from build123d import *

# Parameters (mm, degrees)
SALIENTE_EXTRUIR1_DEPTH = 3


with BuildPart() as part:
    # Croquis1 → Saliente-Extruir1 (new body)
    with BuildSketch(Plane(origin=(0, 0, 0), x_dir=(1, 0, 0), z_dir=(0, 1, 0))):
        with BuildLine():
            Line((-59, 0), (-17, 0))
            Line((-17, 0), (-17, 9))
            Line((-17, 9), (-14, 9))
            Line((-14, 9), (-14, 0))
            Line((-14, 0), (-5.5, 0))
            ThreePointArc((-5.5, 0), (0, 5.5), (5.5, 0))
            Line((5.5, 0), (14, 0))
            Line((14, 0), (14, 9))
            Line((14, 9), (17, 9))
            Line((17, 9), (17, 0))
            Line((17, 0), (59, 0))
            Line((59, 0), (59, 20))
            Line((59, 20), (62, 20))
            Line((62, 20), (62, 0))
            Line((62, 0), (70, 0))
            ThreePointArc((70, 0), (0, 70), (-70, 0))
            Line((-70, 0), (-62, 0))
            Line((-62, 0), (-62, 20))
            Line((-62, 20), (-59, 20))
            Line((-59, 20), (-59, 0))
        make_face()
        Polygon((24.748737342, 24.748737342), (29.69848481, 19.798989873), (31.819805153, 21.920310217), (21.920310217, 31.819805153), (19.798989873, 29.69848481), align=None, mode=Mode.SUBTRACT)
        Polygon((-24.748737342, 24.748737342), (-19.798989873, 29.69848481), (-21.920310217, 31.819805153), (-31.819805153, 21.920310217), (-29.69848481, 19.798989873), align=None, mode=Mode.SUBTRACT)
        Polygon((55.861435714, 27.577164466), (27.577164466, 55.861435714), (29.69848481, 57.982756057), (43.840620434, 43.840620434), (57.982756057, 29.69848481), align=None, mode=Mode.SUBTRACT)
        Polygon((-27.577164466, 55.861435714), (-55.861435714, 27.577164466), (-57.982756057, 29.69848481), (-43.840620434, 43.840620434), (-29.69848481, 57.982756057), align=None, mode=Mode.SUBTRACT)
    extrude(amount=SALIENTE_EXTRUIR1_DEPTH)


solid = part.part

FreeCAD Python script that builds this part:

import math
import FreeCAD as App
import Part
import Sketcher
from FreeCAD import Vector


def add_polygon(sketch, points):
    """Adds a closed chain of lines whose ends are joined by coincident constraints."""
    first, n = sketch.GeometryCount, len(points)
    for a, b in zip(points, points[1:] + points[:1]):
        sketch.addGeometry(Part.LineSegment(App.Vector(*a, 0), App.Vector(*b, 0)), False)
    for i in range(n):
        sketch.addConstraint(Sketcher.Constraint("Coincident", first + i, 2, first + (i + 1) % n, 1))

doc = App.newDocument("Part")
body = doc.addObject("PartDesign::Body", "Body")

sketch1 = body.newObject("Sketcher::SketchObject", "Sketch")
sketch1.AttachmentSupport = (doc.getObject("XZ_Plane"), [""])
sketch1.MapMode = "FlatFace"
sketch1.addGeometry(Part.LineSegment(Vector(-59, 0, 0), Vector(-17, 0, 0)), False)
sketch1.addGeometry(Part.LineSegment(Vector(-17, 0, 0), Vector(-17, -9, 0)), False)
sketch1.addGeometry(Part.LineSegment(Vector(-17, -9, 0), Vector(-14, -9, 0)), False)
sketch1.addGeometry(Part.LineSegment(Vector(-14, -9, 0), Vector(-14, 0, 0)), False)
sketch1.addGeometry(Part.LineSegment(Vector(-14, 0, 0), Vector(-5.5, 0, 0)), False)
sketch1.addGeometry(Part.ArcOfCircle(Part.Circle(Vector(0, 0, 0), Vector(0, 0, 1), 5.5), math.radians(180), math.radians(360)), False)
sketch1.addGeometry(Part.LineSegment(Vector(5.5, 0, 0), Vector(14, 0, 0)), False)
sketch1.addGeometry(Part.LineSegment(Vector(14, 0, 0), Vector(14, -9, 0)), False)
sketch1.addGeometry(Part.LineSegment(Vector(14, -9, 0), Vector(17, -9, 0)), False)
sketch1.addGeometry(Part.LineSegment(Vector(17, -9, 0), Vector(17, 0, 0)), False)
sketch1.addGeometry(Part.LineSegment(Vector(17, 0, 0), Vector(59, 0, 0)), False)
sketch1.addGeometry(Part.LineSegment(Vector(59, 0, 0), Vector(59, -20, 0)), False)
sketch1.addGeometry(Part.LineSegment(Vector(59, -20, 0), Vector(62, -20, 0)), False)
sketch1.addGeometry(Part.LineSegment(Vector(62, -20, 0), Vector(62, 0, 0)), False)
sketch1.addGeometry(Part.LineSegment(Vector(62, 0, 0), Vector(70, 0, 0)), False)
sketch1.addGeometry(Part.ArcOfCircle(Part.Circle(Vector(0, 0, 0), Vector(0, 0, 1), 70), math.radians(180), math.radians(360)), False)
sketch1.addGeometry(Part.LineSegment(Vector(-70, 0, 0), Vector(-62, 0, 0)), False)
sketch1.addGeometry(Part.LineSegment(Vector(-62, 0, 0), Vector(-62, -20, 0)), False)
sketch1.addGeometry(Part.LineSegment(Vector(-62, -20, 0), Vector(-59, -20, 0)), False)
sketch1.addGeometry(Part.LineSegment(Vector(-59, -20, 0), Vector(-59, 0, 0)), False)
add_polygon(sketch1, [(-19.79899, -29.698485), (-24.748737, -24.748737), (-29.698485, -19.79899), (-31.819805, -21.92031), (-21.92031, -31.819805)])
add_polygon(sketch1, [(29.698485, -19.79899), (24.748737, -24.748737), (19.79899, -29.698485), (21.92031, -31.819805), (31.819805, -21.92031)])
add_polygon(sketch1, [(-29.698485, -57.982756), (-27.577164, -55.861436), (-55.861436, -27.577164), (-57.982756, -29.698485), (-43.84062, -43.84062)])
add_polygon(sketch1, [(57.982756, -29.698485), (55.861436, -27.577164), (27.577164, -55.861436), (29.698485, -57.982756), (43.84062, -43.84062)])
sketch1.addConstraint([
    Sketcher.Constraint("Coincident", 0, 2, 1, 1),
    Sketcher.Constraint("Coincident", 1, 2, 2, 1),
    Sketcher.Constraint("Coincident", 2, 2, 3, 1),
    Sketcher.Constraint("Coincident", 3, 2, 4, 1),
    Sketcher.Constraint("Coincident", 4, 2, 5, 1),
    Sketcher.Constraint("Coincident", 5, 2, 6, 1),
    Sketcher.Constraint("Coincident", 6, 2, 7, 1),
    Sketcher.Constraint("Coincident", 7, 2, 8, 1),
    Sketcher.Constraint("Coincident", 8, 2, 9, 1),
    Sketcher.Constraint("Coincident", 9, 2, 10, 1),
    Sketcher.Constraint("Coincident", 10, 2, 11, 1),
    Sketcher.Constraint("Coincident", 11, 2, 12, 1),
    Sketcher.Constraint("Coincident", 12, 2, 13, 1),
    Sketcher.Constraint("Coincident", 13, 2, 14, 1),
    Sketcher.Constraint("Coincident", 14, 2, 15, 2),
    Sketcher.Constraint("Coincident", 15, 1, 16, 1),
    Sketcher.Constraint("Coincident", 16, 2, 17, 1),
    Sketcher.Constraint("Coincident", 17, 2, 18, 1),
    Sketcher.Constraint("Coincident", 18, 2, 19, 1),
    Sketcher.Constraint("Coincident", 19, 2, 0, 1),
    Sketcher.Constraint("Horizontal", 0),
    Sketcher.Constraint("Vertical", 1),
    Sketcher.Constraint("Horizontal", 2),
    Sketcher.Constraint("Vertical", 3),
    Sketcher.Constraint("Horizontal", 4),
    Sketcher.Constraint("Horizontal", 6),
    Sketcher.Constraint("Vertical", 7),
    Sketcher.Constraint("Horizontal", 8),
    Sketcher.Constraint("Vertical", 9),
    Sketcher.Constraint("Horizontal", 10),
    Sketcher.Constraint("Vertical", 11),
    Sketcher.Constraint("Horizontal", 12),
    Sketcher.Constraint("Vertical", 13),
    Sketcher.Constraint("Horizontal", 14),
    Sketcher.Constraint("Horizontal", 16),
    Sketcher.Constraint("Vertical", 17),
    Sketcher.Constraint("Horizontal", 18),
    Sketcher.Constraint("Vertical", 19),
    Sketcher.Constraint("Coincident", 5, 3, -1, 1),
    Sketcher.Constraint("Coincident", 15, 3, -1, 1),
    Sketcher.Constraint("Symmetric", 3, 2, 6, 2, -1, 1),
    Sketcher.Constraint("Symmetric", 0, 2, 9, 2, -1, 1),
    Sketcher.Constraint("Symmetric", 13, 2, 16, 2, -1, 1),
    Sketcher.Constraint("Symmetric", 11, 2, 18, 2, -2),
    Sketcher.Constraint("Symmetric", 20, 2, 25, 2, -2),
    Sketcher.Constraint("Symmetric", 24, 2, 26, 2, -2),
    Sketcher.Constraint("Symmetric", 23, 2, 27, 2, -2),
    Sketcher.Constraint("Symmetric", 22, 2, 28, 2, -2),
    Sketcher.Constraint("Symmetric", 21, 2, 29, 2, -2),
    Sketcher.Constraint("Symmetric", 31, 2, 35, 2, -2),
    Sketcher.Constraint("Symmetric", 30, 2, 36, 2, -2),
    Sketcher.Constraint("Symmetric", 34, 2, 37, 2, -2),
    Sketcher.Constraint("Symmetric", 33, 2, 38, 2, -2),
    Sketcher.Constraint("Symmetric", 32, 2, 39, 2, -2),
    Sketcher.Constraint("PointOnObject", 0, 2, -1),
    Sketcher.Constraint("PointOnObject", 3, 2, -1),
    Sketcher.Constraint("PointOnObject", 13, 2, -1),
    Sketcher.Constraint("Parallel", 20, 21),
    Sketcher.Constraint("Perpendicular", 21, 22),
    Sketcher.Constraint("Perpendicular", 22, 23),
    Sketcher.Constraint("Perpendicular", 23, 24),
    Sketcher.Constraint("Parallel", 24, 25),
    Sketcher.Constraint("Perpendicular", 29, 30),
    Sketcher.Constraint("Perpendicular", 30, 31),
    Sketcher.Constraint("Perpendicular", 31, 32),
    Sketcher.Constraint("Perpendicular", 32, 33),
    Sketcher.Constraint("Parallel", 33, 34),
    Sketcher.Constraint("Horizontal", 2, 2, 7, 2),
    Sketcher.Constraint("Horizontal", 26, 2, 32, 2),
    Sketcher.Constraint("Vertical", 21, 2, 34, 2),
    Sketcher.Constraint("Equal", 8, 12),
    Sketcher.Constraint("Equal", 20, 21),
    Sketcher.Constraint("Equal", 29, 30),
    Sketcher.Constraint("Equal", 33, 34),
    Sketcher.Constraint("Radius", 15, 70.0),
    Sketcher.Constraint("Radius", 5, 5.5),
    Sketcher.Constraint("DistanceX", 0, 1, 0, 2, 42.0),
    Sketcher.Constraint("DistanceX", 2, 1, 2, 2, 3.0),
    Sketcher.Constraint("DistanceX", 14, 1, 14, 2, 8.0),
    Sketcher.Constraint("DistanceY", 1, 2, 1, 1, 9.0),
    Sketcher.Constraint("DistanceY", 11, 2, 11, 1, 20.0),
    Sketcher.Constraint("Distance", 20, 7.0),
    Sketcher.Constraint("Distance", 22, 3.0),
    Sketcher.Constraint("Distance", 31, 40.0),
    Sketcher.Constraint("DistanceY", 21, 2, -1, 1, 19.79899),
    Sketcher.Constraint("DistanceX", 23, 2, -1, 1, 21.92031),
])
pad1 = body.newObject("PartDesign::Pad", "Pad")
pad1.Profile = sketch1
pad1.Length = 3
pad1.Reversed = True

doc.recompute()
